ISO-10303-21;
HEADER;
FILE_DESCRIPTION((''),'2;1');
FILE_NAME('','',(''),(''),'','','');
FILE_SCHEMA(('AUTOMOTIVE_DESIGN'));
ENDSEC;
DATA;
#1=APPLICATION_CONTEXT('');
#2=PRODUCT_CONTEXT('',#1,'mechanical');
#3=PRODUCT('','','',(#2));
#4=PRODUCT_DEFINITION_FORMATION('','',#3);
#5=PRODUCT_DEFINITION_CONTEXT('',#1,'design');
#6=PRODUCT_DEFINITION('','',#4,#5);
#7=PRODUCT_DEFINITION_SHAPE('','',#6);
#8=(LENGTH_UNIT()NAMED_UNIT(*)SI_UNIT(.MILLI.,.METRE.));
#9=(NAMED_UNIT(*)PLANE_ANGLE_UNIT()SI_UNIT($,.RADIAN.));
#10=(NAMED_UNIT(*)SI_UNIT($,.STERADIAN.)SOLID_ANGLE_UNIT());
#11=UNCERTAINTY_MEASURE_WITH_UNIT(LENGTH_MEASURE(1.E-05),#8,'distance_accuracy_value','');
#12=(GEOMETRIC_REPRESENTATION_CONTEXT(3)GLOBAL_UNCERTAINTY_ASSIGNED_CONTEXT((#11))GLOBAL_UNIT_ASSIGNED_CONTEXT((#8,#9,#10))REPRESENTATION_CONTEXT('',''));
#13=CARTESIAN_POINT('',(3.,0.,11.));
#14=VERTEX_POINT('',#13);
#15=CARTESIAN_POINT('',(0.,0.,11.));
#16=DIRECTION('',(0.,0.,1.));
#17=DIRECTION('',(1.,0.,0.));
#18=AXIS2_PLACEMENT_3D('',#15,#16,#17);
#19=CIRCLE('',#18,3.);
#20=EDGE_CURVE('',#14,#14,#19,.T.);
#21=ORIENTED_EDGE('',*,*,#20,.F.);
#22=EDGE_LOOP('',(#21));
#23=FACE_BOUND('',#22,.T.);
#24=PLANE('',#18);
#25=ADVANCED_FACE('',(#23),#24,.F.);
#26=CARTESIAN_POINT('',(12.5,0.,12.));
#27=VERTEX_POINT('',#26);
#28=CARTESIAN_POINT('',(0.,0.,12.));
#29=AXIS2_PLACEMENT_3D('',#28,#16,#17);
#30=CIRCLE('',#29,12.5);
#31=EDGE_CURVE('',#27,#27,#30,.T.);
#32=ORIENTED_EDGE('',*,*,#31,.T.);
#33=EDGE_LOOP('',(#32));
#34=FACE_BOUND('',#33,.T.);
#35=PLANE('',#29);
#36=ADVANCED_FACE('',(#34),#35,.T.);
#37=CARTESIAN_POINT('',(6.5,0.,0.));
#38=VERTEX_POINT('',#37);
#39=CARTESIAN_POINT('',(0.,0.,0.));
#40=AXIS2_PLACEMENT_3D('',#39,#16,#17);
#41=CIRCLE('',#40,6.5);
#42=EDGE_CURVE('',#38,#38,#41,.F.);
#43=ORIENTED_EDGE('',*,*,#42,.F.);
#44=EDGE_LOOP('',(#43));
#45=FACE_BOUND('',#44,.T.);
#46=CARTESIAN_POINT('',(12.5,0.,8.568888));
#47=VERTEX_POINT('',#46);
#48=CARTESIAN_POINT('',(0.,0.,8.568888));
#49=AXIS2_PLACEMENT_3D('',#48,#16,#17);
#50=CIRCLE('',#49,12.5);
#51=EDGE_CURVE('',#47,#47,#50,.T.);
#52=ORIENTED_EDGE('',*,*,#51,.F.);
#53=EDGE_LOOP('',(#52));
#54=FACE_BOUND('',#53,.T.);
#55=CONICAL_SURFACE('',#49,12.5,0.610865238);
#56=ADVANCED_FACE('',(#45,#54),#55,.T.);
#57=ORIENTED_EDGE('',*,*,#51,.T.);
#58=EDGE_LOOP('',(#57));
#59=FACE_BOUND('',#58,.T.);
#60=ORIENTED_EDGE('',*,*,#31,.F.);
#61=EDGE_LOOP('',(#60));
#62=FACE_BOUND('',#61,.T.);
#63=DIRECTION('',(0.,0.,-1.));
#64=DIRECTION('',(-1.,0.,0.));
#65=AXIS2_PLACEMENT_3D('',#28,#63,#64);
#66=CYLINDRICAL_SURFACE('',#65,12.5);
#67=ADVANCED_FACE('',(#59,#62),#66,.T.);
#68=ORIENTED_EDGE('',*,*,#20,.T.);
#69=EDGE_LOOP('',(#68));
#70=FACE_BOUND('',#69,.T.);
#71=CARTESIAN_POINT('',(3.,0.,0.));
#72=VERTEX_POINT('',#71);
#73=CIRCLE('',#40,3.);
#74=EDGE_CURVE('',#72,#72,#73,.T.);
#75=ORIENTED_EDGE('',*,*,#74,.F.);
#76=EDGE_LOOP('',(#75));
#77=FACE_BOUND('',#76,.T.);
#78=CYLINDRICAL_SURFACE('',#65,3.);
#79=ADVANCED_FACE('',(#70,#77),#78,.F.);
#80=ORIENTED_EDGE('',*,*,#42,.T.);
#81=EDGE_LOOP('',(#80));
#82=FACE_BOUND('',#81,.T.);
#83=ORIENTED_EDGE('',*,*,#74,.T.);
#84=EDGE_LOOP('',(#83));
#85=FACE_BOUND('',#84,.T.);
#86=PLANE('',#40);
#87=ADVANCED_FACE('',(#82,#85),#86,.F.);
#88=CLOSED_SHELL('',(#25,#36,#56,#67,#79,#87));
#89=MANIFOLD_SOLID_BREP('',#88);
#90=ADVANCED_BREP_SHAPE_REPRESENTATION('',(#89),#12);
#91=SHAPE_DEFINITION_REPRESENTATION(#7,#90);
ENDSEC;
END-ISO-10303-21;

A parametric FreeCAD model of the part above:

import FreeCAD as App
import Part
import Sketcher

V = App.Vector
Q = App.Units.Quantity


def edges_at(feature, points):
    """Names of the edges that pass closest to the given points."""
    edges = feature.Shape.Edges
    near = lambda p: min(range(len(edges)), key=lambda i: edges[i].distToShape(Part.Vertex(*p))[0])
    return sorted({f"Edge{near(p) + 1}" for p in points})

doc = App.newDocument("Part")
body = doc.addObject("PartDesign::Body", "Body")

# Sketch on XY plane
sketch1 = body.newObject("Sketcher::SketchObject", "Sketch")
sketch1.AttachmentSupport = (doc.getObject("XY_Plane"), [""])
sketch1.MapMode = "FlatFace"
sketch1.addGeometry([
    Part.Circle(V(0, 0, 0), V(0, 0, 1), 12.5),
    Part.Circle(V(0, 0, 0), V(0, 0, 1), 3),
], False)
sketch1.addConstraint([
    Sketcher.Constraint("Coincident", 0, 3, -1, 1),
    Sketcher.Constraint("Coincident", 1, 3, -1, 1),
    Sketcher.Constraint("Diameter", 0, Q("25 mm")),
    Sketcher.Constraint("Diameter", 1, Q("6 mm")),
])
pad1 = body.newObject("PartDesign::Pad", "Pad")
pad1.Profile = sketch1
pad1.Length = 12

# Sketch on XY plane
sketch2 = body.newObject("Sketcher::SketchObject", "Sketch001")
sketch2.AttachmentSupport = (doc.getObject("XY_Plane"), [""])
sketch2.MapMode = "FlatFace"
sketch2.AttachmentOffset = App.Placement(V(0, 0, 12), App.Rotation())
sketch2.addGeometry(Part.Circle(V(0, 0, 0), V(0, 0, 1), 3), False)
sketch2.addConstraint([
    Sketcher.Constraint("Coincident", 0, 3, -1, 1),
    Sketcher.Constraint("Diameter", 0, Q("6 mm")),
])
pad2 = body.newObject("PartDesign::Pad", "Pad001")
pad2.Profile = sketch2
pad2.Length = 1
pad2.Reversed = True
doc.recompute()

chamfer = body.newObject("PartDesign::Chamfer", "Chamfer")
chamfer.Base = (pad2, edges_at(pad2, [(-12.5, 0, 0)]))
chamfer.ChamferType = "Two distances"
chamfer.Size = 6
chamfer.Size2 = 8.568888
chamfer.FlipDirection = True

doc.recompute()
